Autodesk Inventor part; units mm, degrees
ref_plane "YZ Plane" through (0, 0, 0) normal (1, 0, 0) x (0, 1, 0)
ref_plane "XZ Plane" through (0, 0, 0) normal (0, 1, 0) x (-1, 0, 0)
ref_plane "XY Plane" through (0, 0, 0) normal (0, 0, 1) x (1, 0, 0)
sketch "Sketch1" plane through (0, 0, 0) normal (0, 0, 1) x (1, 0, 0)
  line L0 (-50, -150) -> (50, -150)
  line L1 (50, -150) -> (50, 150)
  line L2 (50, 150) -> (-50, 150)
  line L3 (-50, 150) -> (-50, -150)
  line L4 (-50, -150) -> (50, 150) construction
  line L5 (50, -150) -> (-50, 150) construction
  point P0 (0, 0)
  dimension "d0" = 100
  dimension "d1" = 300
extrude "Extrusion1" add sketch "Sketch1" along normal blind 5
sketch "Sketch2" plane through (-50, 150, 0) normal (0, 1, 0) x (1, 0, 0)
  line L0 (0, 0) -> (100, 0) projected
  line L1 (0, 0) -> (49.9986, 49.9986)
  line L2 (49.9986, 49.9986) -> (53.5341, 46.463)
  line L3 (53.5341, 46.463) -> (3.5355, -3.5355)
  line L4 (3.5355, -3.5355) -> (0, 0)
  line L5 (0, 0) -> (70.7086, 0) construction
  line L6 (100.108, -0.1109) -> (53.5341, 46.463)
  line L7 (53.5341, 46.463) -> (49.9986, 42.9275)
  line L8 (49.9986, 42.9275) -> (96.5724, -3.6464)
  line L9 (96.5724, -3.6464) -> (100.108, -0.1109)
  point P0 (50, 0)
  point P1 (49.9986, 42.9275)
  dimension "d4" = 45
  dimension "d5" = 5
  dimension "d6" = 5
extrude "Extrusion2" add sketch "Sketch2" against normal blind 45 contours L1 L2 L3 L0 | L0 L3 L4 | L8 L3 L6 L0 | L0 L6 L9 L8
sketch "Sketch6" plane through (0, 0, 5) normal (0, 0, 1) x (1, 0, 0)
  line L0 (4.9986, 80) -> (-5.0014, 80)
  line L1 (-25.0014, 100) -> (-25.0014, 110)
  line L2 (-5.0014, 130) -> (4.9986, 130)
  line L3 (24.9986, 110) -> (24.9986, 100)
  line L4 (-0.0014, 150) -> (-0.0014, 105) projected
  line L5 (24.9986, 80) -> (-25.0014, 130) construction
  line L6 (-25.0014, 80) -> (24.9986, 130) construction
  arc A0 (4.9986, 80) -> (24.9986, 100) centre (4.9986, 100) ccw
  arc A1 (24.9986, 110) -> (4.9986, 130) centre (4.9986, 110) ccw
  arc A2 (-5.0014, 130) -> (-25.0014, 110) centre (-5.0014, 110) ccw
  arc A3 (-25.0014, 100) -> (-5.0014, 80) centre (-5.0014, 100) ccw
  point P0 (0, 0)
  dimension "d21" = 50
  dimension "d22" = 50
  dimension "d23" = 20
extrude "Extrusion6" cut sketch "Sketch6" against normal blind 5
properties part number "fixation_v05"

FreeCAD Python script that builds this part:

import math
import FreeCAD as App
import Part
import Sketcher

doc = App.newDocument("Part")
body = doc.addObject("PartDesign::Body", "Body")

# Sketch on XY plane
sketch1 = body.newObject("Sketcher::SketchObject", "Sketch")
sketch1.AttachmentSupport = (doc.getObject("XY_Plane"), [""])
sketch1.MapMode = "FlatFace"
sketch1.addGeometry([
    Part.LineSegment(App.Vector(-50, 150, 0), App.Vector(-50, -150, 0)),
    Part.LineSegment(App.Vector(-50, -150, 0), App.Vector(50, -150, 0)),
    Part.LineSegment(App.Vector(50, -150, 0), App.Vector(50, 150, 0)),
    Part.LineSegment(App.Vector(50, 150, 0), App.Vector(-50, 150, 0)),
], False)
sketch1.addConstraint([
    Sketcher.Constraint("Coincident", 0, 2, 1, 1),
    Sketcher.Constraint("Coincident", 1, 2, 2, 1),
    Sketcher.Constraint("Coincident", 2, 2, 3, 1),
    Sketcher.Constraint("Coincident", 3, 2, 0, 1),
    Sketcher.Constraint("Vertical", 0),
    Sketcher.Constraint("Horizontal", 1),
    Sketcher.Constraint("Vertical", 2),
    Sketcher.Constraint("Horizontal", 3),
    Sketcher.Constraint("Symmetric", 0, 2, 2, 2, -1, 1),
    Sketcher.Constraint("DistanceX", 1, 1, 1, 2, 100.0),
    Sketcher.Constraint("DistanceY", 0, 2, 0, 1, 300.0),
])
pad1 = body.newObject("PartDesign::Pad", "Pad")
pad1.Profile = sketch1
pad1.Length = 5

# Sketch on XZ plane
sketch2 = body.newObject("Sketcher::SketchObject", "Sketch001")
sketch2.AttachmentSupport = (doc.getObject("XZ_Plane"), [""])
sketch2.MapMode = "FlatFace"
sketch2.AttachmentOffset = App.Placement(App.Vector(0, 0, -150), App.Rotation())
sketch2.addGeometry([
    Part.LineSegment(App.Vector(0, -50, 0), App.Vector(-50, 0, 0)),  # 0
    Part.LineSegment(App.Vector(-50, 0, 0), App.Vector(-46.5, 3.5, 0)),  # 1
    Part.LineSegment(App.Vector(-46.5, 3.5, 0), App.Vector(0, -42.9, 0)),  # 2
    Part.LineSegment(App.Vector(0, -42.9, 0), App.Vector(46.6, 3.6, 0)),  # 3
    Part.LineSegment(App.Vector(46.6, 3.6, 0), App.Vector(50.1, 0.1, 0)),  # 4
    Part.LineSegment(App.Vector(50.1, 0.1, 0), App.Vector(3.5, -46.5, 0)),  # 5
    Part.LineSegment(App.Vector(3.5, -46.5, 0), App.Vector(0, -50, 0)),  # 6
], False)
sketch2.addConstraint([
    Sketcher.Constraint("Coincident", 0, 2, 1, 1),
    Sketcher.Constraint("Coincident", 1, 2, 2, 1),
    Sketcher.Constraint("Coincident", 2, 2, 3, 1),
    Sketcher.Constraint("Coincident", 3, 2, 4, 1),
    Sketcher.Constraint("Coincident", 4, 2, 5, 1),
    Sketcher.Constraint("Coincident", 5, 2, 6, 1),
    Sketcher.Constraint("Coincident", 6, 2, 0, 1),
    Sketcher.Constraint("PointOnObject", 0, 2, -1),
    Sketcher.Constraint("Perpendicular", 0, 1),
    Sketcher.Constraint("Perpendicular", 1, 2),
    Sketcher.Constraint("Perpendicular", 2, 3),
    Sketcher.Constraint("Perpendicular", 3, 4),
    Sketcher.Constraint("Perpendicular", 4, 5),
    Sketcher.Constraint("Parallel", 5, 6),
    Sketcher.Constraint("Vertical", 2, 2, 6, 2),
    Sketcher.Constraint("Equal", 1, 4),
    Sketcher.Constraint("Equal", 3, 5),
    Sketcher.Constraint("Distance", 1, 5.0),
    Sketcher.Constraint("DistanceX", 0, 2, -1, 1, 50.0),
    Sketcher.Constraint("DistanceX", -1, 1, 4, 2, 50.108),
    Sketcher.Constraint("DistanceY", -1, 1, 4, 2, 0.111),
])
pad2 = body.newObject("PartDesign::Pad", "Pad001")
pad2.Profile = sketch2
pad2.Length = 45

# Sketch on XY plane
sketch3 = body.newObject("Sketcher::SketchObject", "Sketch002")
sketch3.AttachmentSupport = (doc.getObject("XY_Plane"), [""])
sketch3.MapMode = "FlatFace"
sketch3.AttachmentOffset = App.Placement(App.Vector(0, 0, 5), App.Rotation())
sketch3.addGeometry([
    Part.LineSegment(App.Vector(-5, 80, 0), App.Vector(5, 80, 0)),  # 0
    Part.ArcOfCircle(Part.Circle(App.Vector(5, 100, 0), App.Vector(0, 0, 1), 20), math.radians(-90), math.radians(0)),  # 1
    Part.LineSegment(App.Vector(25, 100, 0), App.Vector(25, 110, 0)),  # 2
    Part.ArcOfCircle(Part.Circle(App.Vector(5, 110, 0), App.Vector(0, 0, 1), 20), math.radians(0), math.radians(90)),  # 3
    Part.LineSegment(App.Vector(5, 130, 0), App.Vector(-5, 130, 0)),  # 4
    Part.ArcOfCircle(Part.Circle(App.Vector(-5, 110, 0), App.Vector(0, 0, 1), 20), math.radians(90), math.radians(180)),  # 5
    Part.LineSegment(App.Vector(-25, 110, 0), App.Vector(-25, 100, 0)),  # 6
    Part.ArcOfCircle(Part.Circle(App.Vector(-5, 100, 0), App.Vector(0, 0, 1), 20), math.radians(180), math.radians(270)),  # 7
], False)
sketch3.addConstraint([
    Sketcher.Constraint("Tangent", 0, 2, 1, 1),
    Sketcher.Constraint("Tangent", 1, 2, 2, 1),
    Sketcher.Constraint("Tangent", 2, 2, 3, 1),
    Sketcher.Constraint("Tangent", 3, 2, 4, 1),
    Sketcher.Constraint("Tangent", 4, 2, 5, 1),
    Sketcher.Constraint("Tangent", 5, 2, 6, 1),
    Sketcher.Constraint("Tangent", 6, 2, 7, 1),
    Sketcher.Constraint("Tangent", 7, 2, 0, 1),
    Sketcher.Constraint("Horizontal", 0),
    Sketcher.Constraint("Vertical", 2),
    Sketcher.Constraint("Horizontal", 4),
    Sketcher.Constraint("Vertical", 6),
    Sketcher.Constraint("Equal", 1, 3),
    Sketcher.Constraint("Equal", 3, 5),
    Sketcher.Constraint("Equal", 5, 7),
    Sketcher.Constraint("Equal", 4, 2),
    Sketcher.Constraint("Radius", 1, 20.0),
    Sketcher.Constraint("DistanceX", 0, 1, 0, 2, 10.0),
    Sketcher.Constraint("DistanceY", -1, 1, 1, 3, 100.0),
    Sketcher.Constraint("DistanceX", -1, 1, 1, 3, 4.9986),
])
pocket1 = body.newObject("PartDesign::Pocket", "Pocket")
pocket1.Profile = sketch3
pocket1.Length = 5

doc.recompute()
